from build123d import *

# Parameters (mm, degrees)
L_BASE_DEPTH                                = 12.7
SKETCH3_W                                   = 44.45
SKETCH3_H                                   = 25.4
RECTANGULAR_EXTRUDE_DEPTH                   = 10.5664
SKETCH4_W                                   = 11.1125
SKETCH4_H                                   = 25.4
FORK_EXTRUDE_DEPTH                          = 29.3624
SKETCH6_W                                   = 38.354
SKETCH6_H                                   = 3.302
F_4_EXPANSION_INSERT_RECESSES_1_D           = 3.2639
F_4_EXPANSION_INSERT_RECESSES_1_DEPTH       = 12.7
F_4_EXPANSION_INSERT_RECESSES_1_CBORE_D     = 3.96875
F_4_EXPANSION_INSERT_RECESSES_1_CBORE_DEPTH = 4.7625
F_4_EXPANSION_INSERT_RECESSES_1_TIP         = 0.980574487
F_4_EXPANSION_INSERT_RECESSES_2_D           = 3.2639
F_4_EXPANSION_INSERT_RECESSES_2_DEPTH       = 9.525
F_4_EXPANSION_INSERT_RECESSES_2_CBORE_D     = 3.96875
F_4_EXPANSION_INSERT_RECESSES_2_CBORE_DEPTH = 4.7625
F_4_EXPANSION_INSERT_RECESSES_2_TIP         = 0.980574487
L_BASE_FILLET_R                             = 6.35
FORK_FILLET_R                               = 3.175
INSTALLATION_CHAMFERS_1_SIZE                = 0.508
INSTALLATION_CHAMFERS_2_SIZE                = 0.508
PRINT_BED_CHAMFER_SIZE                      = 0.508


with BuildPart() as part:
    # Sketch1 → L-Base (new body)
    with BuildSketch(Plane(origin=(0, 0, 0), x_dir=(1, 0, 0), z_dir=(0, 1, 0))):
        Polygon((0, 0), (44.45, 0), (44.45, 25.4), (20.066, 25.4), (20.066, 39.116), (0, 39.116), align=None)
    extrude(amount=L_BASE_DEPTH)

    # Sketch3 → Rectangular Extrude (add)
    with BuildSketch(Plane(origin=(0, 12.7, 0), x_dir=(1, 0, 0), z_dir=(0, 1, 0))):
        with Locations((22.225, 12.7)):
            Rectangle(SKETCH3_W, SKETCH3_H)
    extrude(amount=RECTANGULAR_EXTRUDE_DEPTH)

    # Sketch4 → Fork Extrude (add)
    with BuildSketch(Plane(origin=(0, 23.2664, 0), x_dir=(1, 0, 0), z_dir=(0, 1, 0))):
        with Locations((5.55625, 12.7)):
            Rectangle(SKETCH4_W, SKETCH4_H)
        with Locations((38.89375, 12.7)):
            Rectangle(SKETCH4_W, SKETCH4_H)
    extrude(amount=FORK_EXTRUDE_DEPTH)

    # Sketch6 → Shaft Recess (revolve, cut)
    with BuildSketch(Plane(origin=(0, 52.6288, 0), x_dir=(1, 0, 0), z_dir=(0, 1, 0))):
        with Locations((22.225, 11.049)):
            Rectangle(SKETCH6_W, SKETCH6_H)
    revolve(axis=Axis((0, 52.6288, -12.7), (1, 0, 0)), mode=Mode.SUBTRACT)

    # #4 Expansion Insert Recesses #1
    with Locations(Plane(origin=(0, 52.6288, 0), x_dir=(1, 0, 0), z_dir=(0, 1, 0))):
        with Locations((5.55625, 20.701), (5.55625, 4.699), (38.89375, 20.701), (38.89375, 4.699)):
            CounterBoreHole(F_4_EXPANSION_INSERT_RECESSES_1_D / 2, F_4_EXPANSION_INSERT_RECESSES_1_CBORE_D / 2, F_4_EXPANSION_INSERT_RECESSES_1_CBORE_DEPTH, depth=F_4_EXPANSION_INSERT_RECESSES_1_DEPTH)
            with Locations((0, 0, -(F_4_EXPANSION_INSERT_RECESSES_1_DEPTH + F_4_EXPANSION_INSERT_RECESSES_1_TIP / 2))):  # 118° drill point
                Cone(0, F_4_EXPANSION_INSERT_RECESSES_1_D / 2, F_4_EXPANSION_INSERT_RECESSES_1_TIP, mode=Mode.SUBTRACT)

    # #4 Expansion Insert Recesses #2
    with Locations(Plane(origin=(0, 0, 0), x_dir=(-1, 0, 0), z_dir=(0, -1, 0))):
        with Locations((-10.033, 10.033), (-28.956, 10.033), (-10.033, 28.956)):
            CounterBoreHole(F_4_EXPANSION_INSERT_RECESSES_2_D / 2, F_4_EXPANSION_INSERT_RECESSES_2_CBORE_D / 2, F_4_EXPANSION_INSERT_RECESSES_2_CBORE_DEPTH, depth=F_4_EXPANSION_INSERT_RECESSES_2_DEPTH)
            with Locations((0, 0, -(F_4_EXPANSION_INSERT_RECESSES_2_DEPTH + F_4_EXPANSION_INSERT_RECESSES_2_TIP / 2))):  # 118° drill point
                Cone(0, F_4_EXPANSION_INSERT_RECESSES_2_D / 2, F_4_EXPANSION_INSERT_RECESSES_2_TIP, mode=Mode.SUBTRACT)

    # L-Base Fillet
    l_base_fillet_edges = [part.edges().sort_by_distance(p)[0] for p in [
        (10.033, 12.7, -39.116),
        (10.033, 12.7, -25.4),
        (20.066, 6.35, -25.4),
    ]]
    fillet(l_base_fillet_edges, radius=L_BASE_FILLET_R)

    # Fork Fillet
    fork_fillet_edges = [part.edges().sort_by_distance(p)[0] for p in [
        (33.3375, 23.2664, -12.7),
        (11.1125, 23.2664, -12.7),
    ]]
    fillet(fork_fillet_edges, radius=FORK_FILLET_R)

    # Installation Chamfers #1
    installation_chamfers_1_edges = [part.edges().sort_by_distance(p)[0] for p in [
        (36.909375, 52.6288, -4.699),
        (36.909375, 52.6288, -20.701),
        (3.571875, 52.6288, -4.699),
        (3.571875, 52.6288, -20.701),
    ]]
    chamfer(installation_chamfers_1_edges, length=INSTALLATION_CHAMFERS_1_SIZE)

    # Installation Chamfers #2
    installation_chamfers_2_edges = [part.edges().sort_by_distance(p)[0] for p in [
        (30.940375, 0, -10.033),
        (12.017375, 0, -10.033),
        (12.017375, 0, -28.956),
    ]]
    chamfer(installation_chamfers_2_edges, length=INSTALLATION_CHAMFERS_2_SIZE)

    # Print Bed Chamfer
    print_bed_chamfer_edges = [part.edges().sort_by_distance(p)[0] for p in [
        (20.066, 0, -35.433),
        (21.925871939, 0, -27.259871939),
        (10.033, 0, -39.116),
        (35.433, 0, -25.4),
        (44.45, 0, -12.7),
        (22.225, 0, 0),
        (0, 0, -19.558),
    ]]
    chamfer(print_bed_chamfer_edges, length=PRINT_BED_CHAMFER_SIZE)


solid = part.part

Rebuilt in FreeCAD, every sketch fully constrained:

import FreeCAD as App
import Part
import Sketcher

V = App.Vector
Q = App.Units.Quantity


def edges_at(feature, points):
    """Names of the edges that pass closest to the given points."""
    edges = feature.Shape.Edges
    near = lambda p: min(range(len(edges)), key=lambda i: edges[i].distToShape(Part.Vertex(*p))[0])
    return sorted({f"Edge{near(p) + 1}" for p in points})

doc = App.newDocument("Part")
body = doc.addObject("PartDesign::Body", "Body")

# Sketch on XZ plane
sketch1 = body.newObject("Sketcher::SketchObject", "Sketch")
sketch1.AttachmentSupport = (doc.getObject("XZ_Plane"), [""])
sketch1.MapMode = "FlatFace"
sketch1.addGeometry([
    Part.LineSegment(V(0, 0, 0), V(44.45, 0, 0)),  # 0
    Part.LineSegment(V(44.45, 0, 0), V(44.45, -25.4, 0)),  # 1
    Part.LineSegment(V(44.45, -25.4, 0), V(20.066, -25.4, 0)),  # 2
    Part.LineSegment(V(20.066, -25.4, 0), V(20.066, -39.116, 0)),  # 3
    Part.LineSegment(V(20.066, -39.116, 0), V(0, -39.116, 0)),  # 4
    Part.LineSegment(V(0, -39.116, 0), V(0, 0, 0)),  # 5
], False)
sketch1.addConstraint([
    Sketcher.Constraint("Coincident", 0, 2, 1, 1),
    Sketcher.Constraint("Coincident", 1, 2, 2, 1),
    Sketcher.Constraint("Coincident", 2, 2, 3, 1),
    Sketcher.Constraint("Coincident", 3, 2, 4, 1),
    Sketcher.Constraint("Coincident", 4, 2, 5, 1),
    Sketcher.Constraint("Coincident", 5, 2, 0, 1),
    Sketcher.Constraint("Horizontal", 0),
    Sketcher.Constraint("Vertical", 1),
    Sketcher.Constraint("Horizontal", 2),
    Sketcher.Constraint("Vertical", 3),
    Sketcher.Constraint("Horizontal", 4),
    Sketcher.Constraint("Vertical", 5),
    Sketcher.Constraint("Coincident", 5, 2, -1, 1),
    Sketcher.Constraint("DistanceY", 1, 2, 1, 1, Q("1 in")),
    Sketcher.Constraint("DistanceX", 0, 1, 0, 2, Q("1.75 in")),
    Sketcher.Constraint("DistanceX", 2, 2, 2, 1, Q("0.96 in")),
    Sketcher.Constraint("DistanceY", 3, 2, 3, 1, Q("0.54 in")),
])
pad1 = body.newObject("PartDesign::Pad", "Pad")
pad1.Profile = sketch1
pad1.Length = Q("0.5 in")
pad1.Reversed = True

# Sketch on XZ plane
sketch2 = body.newObject("Sketcher::SketchObject", "Sketch001")
sketch2.AttachmentSupport = (doc.getObject("XZ_Plane"), [""])
sketch2.MapMode = "FlatFace"
sketch2.AttachmentOffset = App.Placement(V(0, 0, -0.5 * 25.4), App.Rotation())
sketch2.addGeometry([
    Part.LineSegment(V(0, -25.4, 0), V(0, 0, 0)),
    Part.LineSegment(V(0, 0, 0), V(44.45, 0, 0)),
    Part.LineSegment(V(44.45, 0, 0), V(44.45, -25.4, 0)),
    Part.LineSegment(V(44.45, -25.4, 0), V(0, -25.4, 0)),
], False)
sketch2.addConstraint([
    Sketcher.Constraint("Coincident", 0, 2, 1, 1),
    Sketcher.Constraint("Coincident", 1, 2, 2, 1),
    Sketcher.Constraint("Coincident", 2, 2, 3, 1),
    Sketcher.Constraint("Coincident", 3, 2, 0, 1),
    Sketcher.Constraint("Vertical", 0),
    Sketcher.Constraint("Horizontal", 1),
    Sketcher.Constraint("Vertical", 2),
    Sketcher.Constraint("Horizontal", 3),
    Sketcher.Constraint("Coincident", 0, 2, -1, 1),
    Sketcher.Constraint("DistanceY", 0, 1, 0, 2, Q("1 in")),
    Sketcher.Constraint("DistanceX", 1, 1, 1, 2, Q("1.75 in")),
])
pad2 = body.newObject("PartDesign::Pad", "Pad001")
pad2.Profile = sketch2
pad2.Length = Q("0.416 in")
pad2.Reversed = True

# Sketch on XZ plane
sketch3 = body.newObject("Sketcher::SketchObject", "Sketch002")
sketch3.AttachmentSupport = (doc.getObject("XZ_Plane"), [""])
sketch3.MapMode = "FlatFace"
sketch3.AttachmentOffset = App.Placement(V(0, 0, -0.916 * 25.4), App.Rotation())
sketch3.addGeometry([
    Part.LineSegment(V(0, -25.4, 0), V(0, 0, 0)),  # 0
    Part.LineSegment(V(0, 0, 0), V(11.1125, 0, 0)),  # 1
    Part.LineSegment(V(11.1125, 0, 0), V(11.1125, -25.4, 0)),  # 2
    Part.LineSegment(V(11.1125, -25.4, 0), V(0, -25.4, 0)),  # 3
    Part.LineSegment(V(33.3375, -25.4, 0), V(33.3375, 0, 0)),  # 4
    Part.LineSegment(V(33.3375, 0, 0), V(44.45, 0, 0)),  # 5
    Part.LineSegment(V(44.45, 0, 0), V(44.45, -25.4, 0)),  # 6
    Part.LineSegment(V(44.45, -25.4, 0), V(33.3375, -25.4, 0)),  # 7
], False)
sketch3.addConstraint([
    Sketcher.Constraint("Coincident", 0, 2, 1, 1),
    Sketcher.Constraint("Coincident", 1, 2, 2, 1),
    Sketcher.Constraint("Coincident", 2, 2, 3, 1),
    Sketcher.Constraint("Coincident", 3, 2, 0, 1),
    Sketcher.Constraint("Coincident", 4, 2, 5, 1),
    Sketcher.Constraint("Coincident", 5, 2, 6, 1),
    Sketcher.Constraint("Coincident", 6, 2, 7, 1),
    Sketcher.Constraint("Coincident", 7, 2, 4, 1),
    Sketcher.Constraint("Vertical", 0),
    Sketcher.Constraint("Horizontal", 1),
    Sketcher.Constraint("Vertical", 2),
    Sketcher.Constraint("Horizontal", 3),
    Sketcher.Constraint("Vertical", 4),
    Sketcher.Constraint("Horizontal", 5),
    Sketcher.Constraint("Vertical", 6),
    Sketcher.Constraint("Horizontal", 7),
    Sketcher.Constraint("Coincident", 0, 2, -1, 1),
    Sketcher.Constraint("PointOnObject", 4, 2, -1),
    Sketcher.Constraint("Horizontal", 3, 2, 6, 2),
    Sketcher.Constraint("Equal", 3, 5),
    Sketcher.Constraint("DistanceY", 0, 1, 0, 2, Q("1 in")),
    Sketcher.Constraint("DistanceX", 1, 1, 1, 2, Q("0.4375 in")),
    Sketcher.Constraint("DistanceX", -1, 1, 5, 2, Q("1.75 in")),
])
pad3 = body.newObject("PartDesign::Pad", "Pad002")
pad3.Profile = sketch3
pad3.Length = Q("1.156 in")
pad3.Reversed = True

# Sketch on XZ plane
sketch4 = body.newObject("Sketcher::SketchObject", "Sketch003")
sketch4.AttachmentSupport = (doc.getObject("XZ_Plane"), [""])
sketch4.MapMode = "FlatFace"
sketch4.AttachmentOffset = App.Placement(V(0, 0, -2.072 * 25.4), App.Rotation())
sketch4.addGeometry([
    Part.LineSegment(V(3.048, -12.7, 0), V(3.048, -9.398, 0)),
    Part.LineSegment(V(3.048, -9.398, 0), V(41.402, -9.398, 0)),
    Part.LineSegment(V(41.402, -9.398, 0), V(41.402, -12.7, 0)),
    Part.LineSegment(V(41.402, -12.7, 0), V(3.048, -12.7, 0)),
], False)
sketch4.addGeometry(Part.LineSegment(V(3.048, -12.7, 0), V(41.402, -12.7, 0)), True)  # axis
sketch4.addConstraint([
    Sketcher.Constraint("Coincident", 0, 2, 1, 1),
    Sketcher.Constraint("Coincident", 1, 2, 2, 1),
    Sketcher.Constraint("Coincident", 2, 2, 3, 1),
    Sketcher.Constraint("Coincident", 3, 2, 0, 1),
    Sketcher.Constraint("Vertical", 0),
    Sketcher.Constraint("Horizontal", 1),
    Sketcher.Constraint("Vertical", 2),
    Sketcher.Constraint("Horizontal", 3),
    Sketcher.Constraint("Horizontal", 4),
    Sketcher.Constraint("Coincident", 4, 1, 3, 2),
    Sketcher.Constraint("Vertical", 1, 2, 4, 2),
    Sketcher.Constraint("DistanceX", 1, 1, 1, 2, Q("1.51 in")),
    Sketcher.Constraint("DistanceY", 0, 1, 0, 2, Q("0.13 in")),
    Sketcher.Constraint("DistanceY", 2, 2, -1, 1, Q("0.5 in")),
    Sketcher.Constraint("DistanceX", -1, 1, 0, 2, Q("0.12 in")),
])
groove = body.newObject("PartDesign::Groove", "Groove")
groove.Profile = sketch4
groove.ReferenceAxis = (sketch4, ["Axis0"])
groove.Angle = 360

# Sketch on XZ plane
sketch5 = body.newObject("Sketcher::SketchObject", "Sketch004")
sketch5.AttachmentSupport = (doc.getObject("XZ_Plane"), [""])
sketch5.MapMode = "FlatFace"
sketch5.AttachmentOffset = App.Placement(V(0, 0, -2.072 * 25.4), App.Rotation())
sketch5.addGeometry([
    Part.Circle(V(5.55625, -20.701, 0), V(0, 0, 1), 1.63195),
    Part.Circle(V(5.55625, -4.699, 0), V(0, 0, 1), 1.63195),
    Part.Circle(V(38.89375, -20.701, 0), V(0, 0, 1), 1.63195),
    Part.Circle(V(38.89375, -4.699, 0), V(0, 0, 1), 1.63195),
], False)
sketch5.addConstraint([
    Sketcher.Constraint("Equal", 0, 1),
    Sketcher.Constraint("Equal", 1, 2),
    Sketcher.Constraint("Equal", 2, 3),
    Sketcher.Constraint("Horizontal", 0, 3, 2, 3),
    Sketcher.Constraint("Horizontal", 1, 3, 3, 3),
    Sketcher.Constraint("Vertical", 0, 3, 1, 3),
    Sketcher.Constraint("Vertical", 2, 3, 3, 3),
    Sketcher.Constraint("Diameter", 0, Q("0.1285 in")),
    Sketcher.Constraint("DistanceY", 0, 3, 1, 3, Q("0.63 in")),
    Sketcher.Constraint("DistanceX", -1, 1, 0, 3, Q("0.21875 in")),
    Sketcher.Constraint("DistanceY", 0, 3, -1, 1, Q("0.815 in")),
    Sketcher.Constraint("DistanceX", -1, 1, 2, 3, Q("1.53125 in")),
])
doc.recompute()
hole = body.newObject("PartDesign::Hole", "Hole")
hole.Profile = sketch5
hole.ThreadType = "None"
hole.Diameter = Q("0.1285 in")
hole.DepthType = "Dimension"
hole.Depth = Q("0.5 in")
hole.DrillPoint = "Angled"
hole.DrillPointAngle = 118
hole.HoleCutType = "Counterbore"
hole.HoleCutDiameter = Q("0.15625 in")
hole.HoleCutDepth = Q("0.1875 in")
hole.Reversed = True

# Sketch on XZ plane
sketch6 = body.newObject("Sketcher::SketchObject", "Sketch005")
sketch6.AttachmentSupport = (doc.getObject("XZ_Plane"), [""])
sketch6.MapMode = "FlatFace"
sketch6.addGeometry([
    Part.Circle(V(10.033, -10.033, 0), V(0, 0, 1), 1.63195),
    Part.Circle(V(28.956, -10.033, 0), V(0, 0, 1), 1.63195),
    Part.Circle(V(10.033, -28.956, 0), V(0, 0, 1), 1.63195),
], False)
sketch6.addConstraint([
    Sketcher.Constraint("Equal", 0, 1),
    Sketcher.Constraint("Equal", 1, 2),
    Sketcher.Constraint("Horizontal", 0, 3, 1, 3),
    Sketcher.Constraint("Vertical", 0, 3, 2, 3),
    Sketcher.Constraint("Diameter", 0, Q("0.1285 in")),
    Sketcher.Constraint("DistanceX", -1, 1, 1, 3, Q("1.14 in")),
    Sketcher.Constraint("DistanceY", 2, 3, -1, 1, Q("1.14 in")),
    Sketcher.Constraint("DistanceX", -1, 1, 0, 3, Q("0.395 in")),
    Sketcher.Constraint("DistanceY", 0, 3, -1, 1, Q("0.395 in")),
])
doc.recompute()
hole2 = body.newObject("PartDesign::Hole", "Hole001")
hole2.Profile = sketch6
hole2.ThreadType = "None"
hole2.Diameter = Q("0.1285 in")
hole2.DepthType = "Dimension"
hole2.Depth = Q("0.375 in")
hole2.DrillPoint = "Angled"
hole2.DrillPointAngle = 118
hole2.HoleCutType = "Counterbore"
hole2.HoleCutDiameter = Q("0.15625 in")
hole2.HoleCutDepth = Q("0.1875 in")
doc.recompute()

fillet = body.newObject("PartDesign::Fillet", "Fillet")
fillet.Base = (hole2, edges_at(hole2, [(10.033, 12.7, -39.116), (10.033, 12.7, -25.4), (20.066, 6.35, -25.4)]))
fillet.Radius = Q("0.25 in")
doc.recompute()

fillet2 = body.newObject("PartDesign::Fillet", "Fillet001")
fillet2.Base = (fillet, edges_at(fillet, [(33.337, 23.266, -12.7), (11.113, 23.266, -12.7)]))
fillet2.Radius = Q("0.125 in")
doc.recompute()

chamfer = body.newObject("PartDesign::Chamfer", "Chamfer")
chamfer.Base = (fillet2, edges_at(fillet2, [
    (36.909, 52.629, -4.699),
    (36.909, 52.629, -20.701),
    (3.572, 52.629, -4.699),
    (3.572, 52.629, -20.701),
]))
chamfer.Size = Q("0.02 in")
doc.recompute()

chamfer2 = body.newObject("PartDesign::Chamfer", "Chamfer001")
chamfer2.Base = (chamfer, edges_at(chamfer, [(30.94, 0, -10.033), (12.017, 0, -10.033), (12.017, 0, -28.956)]))
chamfer2.Size = Q("0.02 in")
doc.recompute()

chamfer3 = body.newObject("PartDesign::Chamfer", "Chamfer002")
chamfer3.Base = (chamfer2, edges_at(chamfer2, [
    (20.066, 0, -35.433),
    (21.926, 0, -27.26),
    (10.033, 0, -39.116),
    (35.433, 0, -25.4),
    (44.45, 0, -12.7),
    (22.225, 0, 0),
    (0, 0, -19.558),
]))
chamfer3.Size = Q("0.02 in")

doc.recompute()
